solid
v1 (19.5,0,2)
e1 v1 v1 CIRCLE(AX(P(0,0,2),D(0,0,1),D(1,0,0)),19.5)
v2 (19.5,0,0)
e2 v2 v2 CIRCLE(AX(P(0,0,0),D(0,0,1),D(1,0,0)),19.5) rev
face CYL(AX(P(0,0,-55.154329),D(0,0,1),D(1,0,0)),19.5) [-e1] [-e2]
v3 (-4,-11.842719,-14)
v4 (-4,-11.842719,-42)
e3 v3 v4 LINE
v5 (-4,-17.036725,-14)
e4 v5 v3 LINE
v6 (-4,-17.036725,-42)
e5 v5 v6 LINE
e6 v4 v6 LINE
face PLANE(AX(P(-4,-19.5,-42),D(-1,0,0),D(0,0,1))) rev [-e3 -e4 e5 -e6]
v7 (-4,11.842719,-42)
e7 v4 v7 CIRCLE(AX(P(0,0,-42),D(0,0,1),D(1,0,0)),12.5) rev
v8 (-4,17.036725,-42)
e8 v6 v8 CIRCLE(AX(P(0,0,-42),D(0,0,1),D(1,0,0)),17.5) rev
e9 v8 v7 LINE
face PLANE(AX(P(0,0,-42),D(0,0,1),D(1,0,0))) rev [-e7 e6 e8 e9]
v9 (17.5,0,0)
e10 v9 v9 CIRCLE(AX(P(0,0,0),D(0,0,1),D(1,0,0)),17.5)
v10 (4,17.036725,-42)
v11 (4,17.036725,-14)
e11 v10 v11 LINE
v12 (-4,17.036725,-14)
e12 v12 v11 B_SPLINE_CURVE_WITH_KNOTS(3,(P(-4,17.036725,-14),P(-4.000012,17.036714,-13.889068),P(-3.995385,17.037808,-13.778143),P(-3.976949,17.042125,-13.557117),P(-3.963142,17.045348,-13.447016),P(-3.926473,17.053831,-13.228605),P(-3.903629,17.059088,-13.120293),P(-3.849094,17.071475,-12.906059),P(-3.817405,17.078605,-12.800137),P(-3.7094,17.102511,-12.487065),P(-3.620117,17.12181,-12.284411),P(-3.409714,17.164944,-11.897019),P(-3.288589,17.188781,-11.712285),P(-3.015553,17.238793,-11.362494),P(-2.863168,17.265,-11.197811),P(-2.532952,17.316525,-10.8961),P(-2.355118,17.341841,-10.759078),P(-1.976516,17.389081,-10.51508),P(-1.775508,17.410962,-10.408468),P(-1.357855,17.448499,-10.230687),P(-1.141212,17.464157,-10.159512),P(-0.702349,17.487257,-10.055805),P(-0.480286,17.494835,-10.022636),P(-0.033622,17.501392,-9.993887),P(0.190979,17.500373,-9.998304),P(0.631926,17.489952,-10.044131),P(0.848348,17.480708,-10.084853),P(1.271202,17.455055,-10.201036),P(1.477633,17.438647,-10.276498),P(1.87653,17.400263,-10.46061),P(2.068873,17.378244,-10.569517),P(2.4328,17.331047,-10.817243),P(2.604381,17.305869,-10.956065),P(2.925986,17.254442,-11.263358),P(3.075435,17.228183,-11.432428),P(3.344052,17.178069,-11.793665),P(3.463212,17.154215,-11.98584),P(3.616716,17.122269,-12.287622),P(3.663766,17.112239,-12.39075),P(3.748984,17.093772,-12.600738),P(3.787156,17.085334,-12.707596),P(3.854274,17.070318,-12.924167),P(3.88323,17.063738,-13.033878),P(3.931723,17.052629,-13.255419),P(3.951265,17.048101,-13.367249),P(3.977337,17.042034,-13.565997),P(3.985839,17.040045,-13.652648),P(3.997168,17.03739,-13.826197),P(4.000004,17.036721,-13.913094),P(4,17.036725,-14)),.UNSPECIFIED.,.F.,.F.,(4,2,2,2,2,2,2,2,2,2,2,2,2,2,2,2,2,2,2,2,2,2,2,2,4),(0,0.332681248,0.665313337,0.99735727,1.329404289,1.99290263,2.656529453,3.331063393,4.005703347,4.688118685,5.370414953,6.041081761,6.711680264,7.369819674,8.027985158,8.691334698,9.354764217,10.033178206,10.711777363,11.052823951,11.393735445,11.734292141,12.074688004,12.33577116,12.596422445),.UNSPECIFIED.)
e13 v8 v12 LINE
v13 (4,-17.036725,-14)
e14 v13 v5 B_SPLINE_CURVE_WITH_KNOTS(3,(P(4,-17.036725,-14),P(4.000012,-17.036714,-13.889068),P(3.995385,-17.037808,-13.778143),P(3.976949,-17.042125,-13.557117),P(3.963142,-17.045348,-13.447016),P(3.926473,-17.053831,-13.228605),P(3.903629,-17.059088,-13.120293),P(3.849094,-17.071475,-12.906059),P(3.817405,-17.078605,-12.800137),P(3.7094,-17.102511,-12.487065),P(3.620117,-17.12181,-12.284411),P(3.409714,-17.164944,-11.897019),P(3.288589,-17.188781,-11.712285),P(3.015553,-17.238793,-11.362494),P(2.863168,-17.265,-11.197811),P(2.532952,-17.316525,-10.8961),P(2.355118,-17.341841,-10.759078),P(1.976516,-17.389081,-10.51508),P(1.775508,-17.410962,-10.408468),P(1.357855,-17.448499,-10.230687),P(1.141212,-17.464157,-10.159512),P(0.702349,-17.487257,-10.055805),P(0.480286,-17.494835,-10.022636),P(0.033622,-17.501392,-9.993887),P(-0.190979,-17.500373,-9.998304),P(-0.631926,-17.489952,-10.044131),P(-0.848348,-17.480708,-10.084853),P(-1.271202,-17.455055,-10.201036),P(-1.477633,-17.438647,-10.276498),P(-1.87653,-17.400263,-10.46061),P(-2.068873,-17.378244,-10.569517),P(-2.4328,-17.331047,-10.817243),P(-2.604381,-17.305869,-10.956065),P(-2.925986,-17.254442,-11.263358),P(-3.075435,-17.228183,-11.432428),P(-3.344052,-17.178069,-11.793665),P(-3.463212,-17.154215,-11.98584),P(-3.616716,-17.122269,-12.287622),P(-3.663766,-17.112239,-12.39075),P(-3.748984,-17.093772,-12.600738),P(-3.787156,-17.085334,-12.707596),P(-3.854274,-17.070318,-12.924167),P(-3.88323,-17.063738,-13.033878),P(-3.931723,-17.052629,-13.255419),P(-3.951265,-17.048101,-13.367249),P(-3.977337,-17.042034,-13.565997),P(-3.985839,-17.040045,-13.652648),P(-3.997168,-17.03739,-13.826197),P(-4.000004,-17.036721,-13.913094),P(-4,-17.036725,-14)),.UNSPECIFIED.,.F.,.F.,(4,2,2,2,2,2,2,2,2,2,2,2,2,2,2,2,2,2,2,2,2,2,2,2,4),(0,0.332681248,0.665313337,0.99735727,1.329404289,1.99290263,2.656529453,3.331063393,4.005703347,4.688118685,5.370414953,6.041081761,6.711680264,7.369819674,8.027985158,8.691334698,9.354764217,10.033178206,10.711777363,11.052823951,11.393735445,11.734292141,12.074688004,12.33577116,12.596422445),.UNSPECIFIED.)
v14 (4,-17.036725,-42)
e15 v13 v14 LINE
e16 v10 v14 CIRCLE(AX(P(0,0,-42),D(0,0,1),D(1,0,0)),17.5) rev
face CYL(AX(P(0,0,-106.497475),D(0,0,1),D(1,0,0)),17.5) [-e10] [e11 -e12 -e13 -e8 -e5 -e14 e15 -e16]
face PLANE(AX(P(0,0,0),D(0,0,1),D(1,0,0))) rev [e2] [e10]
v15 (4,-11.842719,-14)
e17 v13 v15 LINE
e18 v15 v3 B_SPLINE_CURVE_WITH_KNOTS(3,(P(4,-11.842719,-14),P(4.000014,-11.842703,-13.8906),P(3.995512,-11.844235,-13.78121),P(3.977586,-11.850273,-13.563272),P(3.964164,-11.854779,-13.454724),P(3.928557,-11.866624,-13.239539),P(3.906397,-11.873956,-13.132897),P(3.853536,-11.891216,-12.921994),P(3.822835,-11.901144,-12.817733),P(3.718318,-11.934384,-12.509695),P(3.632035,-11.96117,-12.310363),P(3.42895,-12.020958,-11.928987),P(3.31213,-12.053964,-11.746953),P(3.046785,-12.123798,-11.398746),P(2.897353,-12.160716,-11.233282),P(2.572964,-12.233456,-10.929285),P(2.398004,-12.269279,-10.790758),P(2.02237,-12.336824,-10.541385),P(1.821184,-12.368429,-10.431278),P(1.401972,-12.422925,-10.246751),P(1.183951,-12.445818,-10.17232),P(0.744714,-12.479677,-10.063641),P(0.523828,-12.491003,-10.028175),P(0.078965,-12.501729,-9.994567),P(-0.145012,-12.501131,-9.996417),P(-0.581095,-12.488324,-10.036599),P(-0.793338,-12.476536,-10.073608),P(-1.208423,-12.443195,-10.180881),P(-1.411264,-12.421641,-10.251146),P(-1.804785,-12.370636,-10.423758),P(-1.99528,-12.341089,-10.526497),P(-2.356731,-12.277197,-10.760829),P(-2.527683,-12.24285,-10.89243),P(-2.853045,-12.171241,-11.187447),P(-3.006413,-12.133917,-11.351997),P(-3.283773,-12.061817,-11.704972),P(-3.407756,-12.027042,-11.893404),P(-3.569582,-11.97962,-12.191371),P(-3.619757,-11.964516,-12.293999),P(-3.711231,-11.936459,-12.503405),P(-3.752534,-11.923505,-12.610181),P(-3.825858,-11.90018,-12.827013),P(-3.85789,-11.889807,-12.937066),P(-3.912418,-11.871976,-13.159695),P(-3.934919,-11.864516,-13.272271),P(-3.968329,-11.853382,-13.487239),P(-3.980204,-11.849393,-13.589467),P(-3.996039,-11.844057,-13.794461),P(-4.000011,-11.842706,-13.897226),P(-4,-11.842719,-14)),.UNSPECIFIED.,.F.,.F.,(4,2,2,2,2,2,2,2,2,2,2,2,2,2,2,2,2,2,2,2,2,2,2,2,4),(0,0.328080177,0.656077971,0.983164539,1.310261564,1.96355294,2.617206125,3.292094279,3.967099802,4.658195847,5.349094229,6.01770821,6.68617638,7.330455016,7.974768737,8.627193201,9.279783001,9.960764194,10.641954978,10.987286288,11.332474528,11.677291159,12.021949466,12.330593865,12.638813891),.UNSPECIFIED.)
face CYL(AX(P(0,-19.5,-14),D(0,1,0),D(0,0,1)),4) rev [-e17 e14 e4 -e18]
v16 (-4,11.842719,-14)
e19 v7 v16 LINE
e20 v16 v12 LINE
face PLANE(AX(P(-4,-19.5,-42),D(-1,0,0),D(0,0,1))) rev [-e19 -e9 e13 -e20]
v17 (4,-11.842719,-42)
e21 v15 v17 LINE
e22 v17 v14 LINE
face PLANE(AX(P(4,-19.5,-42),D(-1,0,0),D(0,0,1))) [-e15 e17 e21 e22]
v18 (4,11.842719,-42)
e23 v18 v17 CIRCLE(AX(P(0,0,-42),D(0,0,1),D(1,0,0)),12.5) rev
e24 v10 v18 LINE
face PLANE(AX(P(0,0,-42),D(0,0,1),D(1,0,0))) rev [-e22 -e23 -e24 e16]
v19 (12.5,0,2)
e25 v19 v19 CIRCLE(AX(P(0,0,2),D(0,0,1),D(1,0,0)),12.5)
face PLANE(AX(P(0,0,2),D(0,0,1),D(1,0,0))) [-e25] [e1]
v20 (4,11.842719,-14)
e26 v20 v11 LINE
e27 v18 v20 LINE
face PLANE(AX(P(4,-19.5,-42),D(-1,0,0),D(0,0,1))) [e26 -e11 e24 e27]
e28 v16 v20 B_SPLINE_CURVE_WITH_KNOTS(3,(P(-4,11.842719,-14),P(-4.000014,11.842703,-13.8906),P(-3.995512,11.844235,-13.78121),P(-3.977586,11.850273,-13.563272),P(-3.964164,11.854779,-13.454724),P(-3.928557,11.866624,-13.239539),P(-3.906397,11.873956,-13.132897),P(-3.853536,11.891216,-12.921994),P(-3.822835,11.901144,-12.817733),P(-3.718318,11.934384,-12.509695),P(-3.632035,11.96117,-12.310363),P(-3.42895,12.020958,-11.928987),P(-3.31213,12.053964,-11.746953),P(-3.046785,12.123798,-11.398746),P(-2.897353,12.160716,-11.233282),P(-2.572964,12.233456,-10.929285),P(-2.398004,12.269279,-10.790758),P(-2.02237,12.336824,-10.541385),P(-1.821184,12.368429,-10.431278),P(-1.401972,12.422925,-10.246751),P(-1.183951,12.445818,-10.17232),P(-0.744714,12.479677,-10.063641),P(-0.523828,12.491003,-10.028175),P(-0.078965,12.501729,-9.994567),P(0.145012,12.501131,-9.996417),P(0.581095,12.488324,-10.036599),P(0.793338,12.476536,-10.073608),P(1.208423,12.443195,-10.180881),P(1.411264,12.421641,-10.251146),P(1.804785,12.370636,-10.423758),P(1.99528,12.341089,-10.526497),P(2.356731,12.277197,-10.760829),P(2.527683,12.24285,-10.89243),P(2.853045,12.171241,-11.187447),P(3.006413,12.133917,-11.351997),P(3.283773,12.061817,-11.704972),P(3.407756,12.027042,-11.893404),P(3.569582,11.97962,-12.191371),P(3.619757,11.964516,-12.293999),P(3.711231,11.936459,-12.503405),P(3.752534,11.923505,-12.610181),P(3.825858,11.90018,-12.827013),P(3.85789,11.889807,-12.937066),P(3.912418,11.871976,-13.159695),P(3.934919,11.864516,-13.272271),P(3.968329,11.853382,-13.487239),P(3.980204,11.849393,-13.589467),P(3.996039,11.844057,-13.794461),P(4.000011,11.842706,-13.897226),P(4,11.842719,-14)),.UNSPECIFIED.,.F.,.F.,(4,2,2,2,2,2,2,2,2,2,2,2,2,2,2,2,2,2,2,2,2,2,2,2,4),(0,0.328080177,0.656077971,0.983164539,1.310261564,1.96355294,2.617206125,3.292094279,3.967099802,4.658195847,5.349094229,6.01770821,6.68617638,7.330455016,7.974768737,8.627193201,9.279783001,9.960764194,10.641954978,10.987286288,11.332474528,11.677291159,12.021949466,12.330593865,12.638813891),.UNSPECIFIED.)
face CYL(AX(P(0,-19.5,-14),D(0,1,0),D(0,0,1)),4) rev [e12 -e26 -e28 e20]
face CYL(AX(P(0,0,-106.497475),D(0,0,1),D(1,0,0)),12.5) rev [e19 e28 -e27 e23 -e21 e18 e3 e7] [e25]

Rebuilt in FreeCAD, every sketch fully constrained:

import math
import FreeCAD as App
import Part
import Sketcher

doc = App.newDocument("Part")
body = doc.addObject("PartDesign::Body", "Body")

sketch1 = body.newObject("Sketcher::SketchObject", "Sketch")
sketch1.AttachmentSupport = (doc.getObject("XY_Plane"), [""])
sketch1.MapMode = "FlatFace"
sketch1.addGeometry([
    Part.Circle(App.Vector(0, 0, 0), App.Vector(0, 0, 1), 17.5),
    Part.Circle(App.Vector(0, 0, 0), App.Vector(0, 0, 1), 12.5),
], False)
sketch1.addConstraint([
    Sketcher.Constraint("Coincident", 0, 3, -1, 1),
    Sketcher.Constraint("Coincident", 1, 3, -1, 1),
    Sketcher.Constraint("Diameter", 0, 35.0),
    Sketcher.Constraint("Diameter", 1, 25.0),
])
pad1 = body.newObject("PartDesign::Pad", "Pad")
pad1.Profile = sketch1
pad1.Type = "TwoLengths"
pad1.Length = 2
pad1.Length2 = 42

sketch2 = body.newObject("Sketcher::SketchObject", "Sketch001")
sketch2.AttachmentSupport = (doc.getObject("XY_Plane"), [""])
sketch2.MapMode = "FlatFace"
sketch2.AttachmentOffset = App.Placement(App.Vector(0, 0, 2), App.Rotation())
sketch2.addGeometry([
    Part.Circle(App.Vector(0, 0, 0), App.Vector(0, 0, 1), 19.5),
    Part.Circle(App.Vector(0, 0, 0), App.Vector(0, 0, 1), 17.5),
], False)
sketch2.addConstraint([
    Sketcher.Constraint("Coincident", 0, 3, -1, 1),
    Sketcher.Constraint("Coincident", 1, 3, -1, 1),
    Sketcher.Constraint("Diameter", 0, 39.0),
    Sketcher.Constraint("Diameter", 1, 35.0),
])
pad2 = body.newObject("PartDesign::Pad", "Pad001")
pad2.Profile = sketch2
pad2.Length = 2
pad2.Reversed = True

sketch3 = body.newObject("Sketcher::SketchObject", "Sketch002")
sketch3.AttachmentSupport = (doc.getObject("XZ_Plane"), [""])
sketch3.MapMode = "FlatFace"
sketch3.addGeometry([
    Part.LineSegment(App.Vector(4, -14, 0), App.Vector(4, -42, 0)),
    Part.ArcOfCircle(Part.Circle(App.Vector(0, -42, 0), App.Vector(0, 0, 1), 4), math.radians(180), math.radians(360)),
    Part.LineSegment(App.Vector(-4, -42, 0), App.Vector(-4, -14, 0)),
    Part.ArcOfCircle(Part.Circle(App.Vector(0, -14, 0), App.Vector(0, 0, 1), 4), math.radians(0), math.radians(180)),
], False)
sketch3.addConstraint([
    Sketcher.Constraint("Tangent", 0, 2, 1, 2),
    Sketcher.Constraint("Tangent", 1, 1, 2, 1),
    Sketcher.Constraint("Tangent", 2, 2, 3, 2),
    Sketcher.Constraint("Tangent", 3, 1, 0, 1),
    Sketcher.Constraint("Vertical", 0),
    Sketcher.Constraint("Vertical", 2),
    Sketcher.Constraint("PointOnObject", 1, 3, -2),
    Sketcher.Constraint("Radius", 1, 4.0),
    Sketcher.Constraint("DistanceY", 0, 2, 0, 1, 28.0),
    Sketcher.Constraint("DistanceY", 1, 3, -1, 1, 42.0),
])
pocket1 = body.newObject("PartDesign::Pocket", "Pocket")
pocket1.Profile = sketch3
pocket1.Type = "ThroughAll"
pocket1.Midplane = True

doc.recompute()
